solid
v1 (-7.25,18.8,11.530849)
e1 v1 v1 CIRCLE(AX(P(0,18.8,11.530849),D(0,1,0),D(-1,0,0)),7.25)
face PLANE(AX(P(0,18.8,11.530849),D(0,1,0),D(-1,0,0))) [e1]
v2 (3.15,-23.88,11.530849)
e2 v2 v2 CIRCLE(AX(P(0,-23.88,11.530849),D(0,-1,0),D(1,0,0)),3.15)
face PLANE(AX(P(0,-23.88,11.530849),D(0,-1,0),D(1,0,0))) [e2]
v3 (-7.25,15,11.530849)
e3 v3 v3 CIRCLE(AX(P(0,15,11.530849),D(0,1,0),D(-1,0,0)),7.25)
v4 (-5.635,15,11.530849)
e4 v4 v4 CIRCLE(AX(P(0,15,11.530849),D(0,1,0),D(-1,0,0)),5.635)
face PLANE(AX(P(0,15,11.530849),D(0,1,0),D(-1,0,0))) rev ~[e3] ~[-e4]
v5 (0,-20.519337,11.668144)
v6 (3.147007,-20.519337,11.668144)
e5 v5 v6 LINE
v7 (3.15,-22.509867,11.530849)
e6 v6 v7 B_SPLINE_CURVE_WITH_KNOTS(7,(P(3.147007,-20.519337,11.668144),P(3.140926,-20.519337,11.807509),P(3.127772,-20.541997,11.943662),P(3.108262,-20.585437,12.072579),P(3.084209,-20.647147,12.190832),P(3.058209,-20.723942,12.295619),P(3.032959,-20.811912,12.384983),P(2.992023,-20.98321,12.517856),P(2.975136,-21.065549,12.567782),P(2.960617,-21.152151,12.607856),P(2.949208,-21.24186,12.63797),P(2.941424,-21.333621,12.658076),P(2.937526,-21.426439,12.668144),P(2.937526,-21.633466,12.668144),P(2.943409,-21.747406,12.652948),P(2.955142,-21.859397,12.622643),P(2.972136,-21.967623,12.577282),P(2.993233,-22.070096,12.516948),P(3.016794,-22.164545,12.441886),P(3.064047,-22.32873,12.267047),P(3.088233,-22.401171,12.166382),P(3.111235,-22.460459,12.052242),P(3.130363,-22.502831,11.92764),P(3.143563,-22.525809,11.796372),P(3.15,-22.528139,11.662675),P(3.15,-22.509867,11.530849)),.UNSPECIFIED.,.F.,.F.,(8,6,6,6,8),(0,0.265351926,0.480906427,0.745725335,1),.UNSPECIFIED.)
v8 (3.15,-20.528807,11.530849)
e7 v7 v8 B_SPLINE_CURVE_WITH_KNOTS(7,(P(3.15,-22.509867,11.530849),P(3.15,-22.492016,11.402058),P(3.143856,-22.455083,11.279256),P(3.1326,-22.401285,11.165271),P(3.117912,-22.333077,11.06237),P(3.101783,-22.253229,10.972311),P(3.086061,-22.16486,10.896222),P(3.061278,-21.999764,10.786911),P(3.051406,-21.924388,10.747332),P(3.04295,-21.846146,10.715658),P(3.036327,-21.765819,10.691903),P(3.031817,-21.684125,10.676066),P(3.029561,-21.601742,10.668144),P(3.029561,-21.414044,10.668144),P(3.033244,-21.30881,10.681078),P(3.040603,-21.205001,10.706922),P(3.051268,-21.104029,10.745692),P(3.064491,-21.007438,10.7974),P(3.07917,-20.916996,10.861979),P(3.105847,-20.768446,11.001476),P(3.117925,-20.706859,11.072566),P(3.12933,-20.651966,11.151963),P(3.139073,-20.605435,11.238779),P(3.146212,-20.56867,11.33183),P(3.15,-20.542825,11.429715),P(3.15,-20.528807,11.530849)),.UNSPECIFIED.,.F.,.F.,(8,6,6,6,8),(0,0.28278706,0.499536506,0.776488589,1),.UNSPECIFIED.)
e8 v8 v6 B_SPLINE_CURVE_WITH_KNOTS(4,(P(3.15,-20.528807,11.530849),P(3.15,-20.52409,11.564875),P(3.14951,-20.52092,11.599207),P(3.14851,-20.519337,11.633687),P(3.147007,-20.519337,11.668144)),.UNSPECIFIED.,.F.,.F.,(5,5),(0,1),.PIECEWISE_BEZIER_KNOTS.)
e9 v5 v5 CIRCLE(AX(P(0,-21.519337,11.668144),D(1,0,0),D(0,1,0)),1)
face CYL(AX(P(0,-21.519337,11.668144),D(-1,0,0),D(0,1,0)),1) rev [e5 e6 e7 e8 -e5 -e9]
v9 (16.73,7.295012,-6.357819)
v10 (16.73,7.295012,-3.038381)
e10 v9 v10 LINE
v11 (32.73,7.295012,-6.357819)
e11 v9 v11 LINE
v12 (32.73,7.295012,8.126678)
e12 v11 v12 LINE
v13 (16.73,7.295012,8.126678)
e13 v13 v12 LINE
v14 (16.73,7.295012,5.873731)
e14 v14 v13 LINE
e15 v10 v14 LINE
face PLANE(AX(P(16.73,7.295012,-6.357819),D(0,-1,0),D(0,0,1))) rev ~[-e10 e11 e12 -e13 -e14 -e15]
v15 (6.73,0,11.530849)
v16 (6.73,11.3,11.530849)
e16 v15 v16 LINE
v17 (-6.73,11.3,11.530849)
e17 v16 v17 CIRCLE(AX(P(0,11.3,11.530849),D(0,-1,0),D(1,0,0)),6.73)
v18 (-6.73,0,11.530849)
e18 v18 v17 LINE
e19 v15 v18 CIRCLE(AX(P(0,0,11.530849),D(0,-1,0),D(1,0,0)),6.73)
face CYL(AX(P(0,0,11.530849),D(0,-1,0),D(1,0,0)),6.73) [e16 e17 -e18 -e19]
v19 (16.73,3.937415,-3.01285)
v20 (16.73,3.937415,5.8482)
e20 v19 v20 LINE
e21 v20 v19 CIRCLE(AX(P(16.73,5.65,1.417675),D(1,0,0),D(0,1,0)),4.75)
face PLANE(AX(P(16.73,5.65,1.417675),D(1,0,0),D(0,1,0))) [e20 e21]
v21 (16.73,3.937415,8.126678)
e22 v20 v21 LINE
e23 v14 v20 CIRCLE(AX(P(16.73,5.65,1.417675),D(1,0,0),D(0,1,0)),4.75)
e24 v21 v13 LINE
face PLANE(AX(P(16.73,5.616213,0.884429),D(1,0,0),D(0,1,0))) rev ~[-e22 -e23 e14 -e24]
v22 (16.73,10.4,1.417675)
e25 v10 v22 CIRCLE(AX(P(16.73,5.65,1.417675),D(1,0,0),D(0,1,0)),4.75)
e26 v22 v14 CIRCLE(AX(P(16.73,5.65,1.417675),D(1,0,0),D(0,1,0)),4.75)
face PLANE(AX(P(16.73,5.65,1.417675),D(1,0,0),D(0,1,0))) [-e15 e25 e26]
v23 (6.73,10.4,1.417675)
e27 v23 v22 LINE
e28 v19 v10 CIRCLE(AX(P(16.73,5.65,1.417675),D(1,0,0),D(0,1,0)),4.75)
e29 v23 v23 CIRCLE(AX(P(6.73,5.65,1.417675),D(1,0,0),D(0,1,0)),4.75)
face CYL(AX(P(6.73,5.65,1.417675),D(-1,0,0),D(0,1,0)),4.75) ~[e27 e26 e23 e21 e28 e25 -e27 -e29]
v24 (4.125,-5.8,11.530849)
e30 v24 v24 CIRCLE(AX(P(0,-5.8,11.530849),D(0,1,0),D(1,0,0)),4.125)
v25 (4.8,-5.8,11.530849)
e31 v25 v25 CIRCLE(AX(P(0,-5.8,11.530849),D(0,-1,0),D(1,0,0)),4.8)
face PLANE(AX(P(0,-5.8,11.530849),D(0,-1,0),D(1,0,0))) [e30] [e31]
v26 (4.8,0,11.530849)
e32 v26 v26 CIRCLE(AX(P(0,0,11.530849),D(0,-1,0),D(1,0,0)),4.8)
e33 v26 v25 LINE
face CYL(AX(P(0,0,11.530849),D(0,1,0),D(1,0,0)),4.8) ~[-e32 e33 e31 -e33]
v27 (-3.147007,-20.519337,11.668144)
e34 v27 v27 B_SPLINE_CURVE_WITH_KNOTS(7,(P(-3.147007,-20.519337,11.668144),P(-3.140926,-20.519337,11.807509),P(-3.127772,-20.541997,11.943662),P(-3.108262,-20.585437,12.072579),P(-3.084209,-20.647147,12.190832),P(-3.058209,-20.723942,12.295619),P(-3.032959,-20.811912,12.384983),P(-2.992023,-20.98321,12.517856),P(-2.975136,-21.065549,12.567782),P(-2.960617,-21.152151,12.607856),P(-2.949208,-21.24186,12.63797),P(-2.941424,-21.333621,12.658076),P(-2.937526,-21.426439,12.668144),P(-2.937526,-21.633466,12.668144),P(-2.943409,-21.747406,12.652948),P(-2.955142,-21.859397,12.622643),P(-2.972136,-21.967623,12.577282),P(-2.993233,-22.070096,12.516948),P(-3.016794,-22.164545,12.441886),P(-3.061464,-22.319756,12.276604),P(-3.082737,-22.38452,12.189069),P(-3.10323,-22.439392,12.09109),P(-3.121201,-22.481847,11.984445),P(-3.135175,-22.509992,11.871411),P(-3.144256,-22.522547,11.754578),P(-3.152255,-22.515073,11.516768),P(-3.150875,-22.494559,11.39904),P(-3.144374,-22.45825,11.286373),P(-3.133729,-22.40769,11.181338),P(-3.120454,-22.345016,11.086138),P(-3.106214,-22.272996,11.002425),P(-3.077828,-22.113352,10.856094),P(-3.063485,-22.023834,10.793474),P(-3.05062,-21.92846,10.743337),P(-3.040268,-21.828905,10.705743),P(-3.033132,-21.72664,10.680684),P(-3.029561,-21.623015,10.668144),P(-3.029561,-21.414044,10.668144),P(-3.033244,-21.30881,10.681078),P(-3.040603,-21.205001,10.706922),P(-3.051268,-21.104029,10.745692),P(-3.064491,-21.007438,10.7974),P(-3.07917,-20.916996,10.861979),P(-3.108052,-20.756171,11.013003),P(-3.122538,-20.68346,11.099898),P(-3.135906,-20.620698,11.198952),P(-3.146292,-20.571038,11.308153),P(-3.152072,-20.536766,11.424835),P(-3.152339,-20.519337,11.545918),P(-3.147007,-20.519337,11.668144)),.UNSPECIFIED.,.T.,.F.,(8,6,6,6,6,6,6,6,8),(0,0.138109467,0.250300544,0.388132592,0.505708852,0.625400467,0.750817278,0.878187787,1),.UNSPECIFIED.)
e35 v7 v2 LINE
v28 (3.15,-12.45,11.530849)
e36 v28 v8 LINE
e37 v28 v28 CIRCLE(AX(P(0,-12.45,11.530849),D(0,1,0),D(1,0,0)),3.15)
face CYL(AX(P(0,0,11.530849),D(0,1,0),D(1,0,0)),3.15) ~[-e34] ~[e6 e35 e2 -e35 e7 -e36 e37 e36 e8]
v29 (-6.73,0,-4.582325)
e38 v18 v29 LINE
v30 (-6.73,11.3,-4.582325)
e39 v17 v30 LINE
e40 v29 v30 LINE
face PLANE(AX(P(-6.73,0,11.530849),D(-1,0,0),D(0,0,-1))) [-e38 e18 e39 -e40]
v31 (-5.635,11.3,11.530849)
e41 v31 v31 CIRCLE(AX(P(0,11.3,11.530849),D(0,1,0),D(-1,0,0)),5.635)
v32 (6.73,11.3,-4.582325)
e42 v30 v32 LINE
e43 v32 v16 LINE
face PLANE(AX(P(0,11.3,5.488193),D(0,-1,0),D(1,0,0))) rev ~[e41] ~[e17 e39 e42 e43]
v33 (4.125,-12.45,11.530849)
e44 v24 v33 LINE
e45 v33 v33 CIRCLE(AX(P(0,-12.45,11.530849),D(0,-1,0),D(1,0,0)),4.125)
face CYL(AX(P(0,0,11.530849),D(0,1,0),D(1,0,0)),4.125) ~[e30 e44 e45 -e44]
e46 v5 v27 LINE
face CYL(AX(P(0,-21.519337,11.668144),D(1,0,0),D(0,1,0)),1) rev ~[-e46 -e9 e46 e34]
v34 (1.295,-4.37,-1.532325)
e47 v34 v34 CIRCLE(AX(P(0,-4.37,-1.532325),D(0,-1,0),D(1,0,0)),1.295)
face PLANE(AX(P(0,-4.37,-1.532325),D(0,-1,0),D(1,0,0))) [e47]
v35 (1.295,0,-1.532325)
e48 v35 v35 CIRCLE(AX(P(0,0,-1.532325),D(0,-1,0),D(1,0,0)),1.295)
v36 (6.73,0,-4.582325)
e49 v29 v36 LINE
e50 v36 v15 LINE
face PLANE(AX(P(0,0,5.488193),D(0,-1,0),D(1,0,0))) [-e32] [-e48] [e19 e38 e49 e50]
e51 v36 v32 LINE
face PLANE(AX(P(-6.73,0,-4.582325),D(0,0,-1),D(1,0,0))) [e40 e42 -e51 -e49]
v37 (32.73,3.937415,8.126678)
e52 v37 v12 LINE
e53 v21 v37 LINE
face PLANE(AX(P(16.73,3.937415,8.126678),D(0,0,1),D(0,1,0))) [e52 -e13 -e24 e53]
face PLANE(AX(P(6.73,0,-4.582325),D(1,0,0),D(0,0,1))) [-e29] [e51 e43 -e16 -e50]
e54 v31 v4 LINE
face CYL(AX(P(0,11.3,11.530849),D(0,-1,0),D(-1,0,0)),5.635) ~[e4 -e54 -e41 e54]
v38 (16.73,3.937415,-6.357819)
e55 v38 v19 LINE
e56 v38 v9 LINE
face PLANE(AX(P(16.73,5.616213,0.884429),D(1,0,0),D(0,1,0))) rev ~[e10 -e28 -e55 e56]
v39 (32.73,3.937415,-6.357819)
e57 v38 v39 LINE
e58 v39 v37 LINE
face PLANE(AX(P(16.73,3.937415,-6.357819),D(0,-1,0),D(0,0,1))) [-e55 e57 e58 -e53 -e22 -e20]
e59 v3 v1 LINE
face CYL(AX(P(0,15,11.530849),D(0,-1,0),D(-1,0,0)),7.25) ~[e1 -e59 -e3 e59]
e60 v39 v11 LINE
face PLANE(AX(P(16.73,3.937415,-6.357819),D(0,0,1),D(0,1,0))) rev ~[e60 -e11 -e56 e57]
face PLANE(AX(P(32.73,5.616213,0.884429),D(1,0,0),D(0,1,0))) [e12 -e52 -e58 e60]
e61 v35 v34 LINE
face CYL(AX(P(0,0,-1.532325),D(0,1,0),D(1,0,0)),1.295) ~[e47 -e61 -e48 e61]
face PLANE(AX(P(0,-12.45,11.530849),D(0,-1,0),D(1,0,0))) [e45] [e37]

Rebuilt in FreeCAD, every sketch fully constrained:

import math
import FreeCAD as App
import Part
import Sketcher
from FreeCAD import Vector
Q = App.Units.Quantity

doc = App.newDocument("Part")
params = doc.addObject("Spreadsheet::Sheet", "Params")
for row, (alias, value) in enumerate([
    ("sketch1_radius", "6.73 mm"),
    ("pad1_length", "11.3 mm"),
    ("sketch2_diameter", "9.6 mm"),
    ("pad2_length", "5.8 mm"),
    ("sketch3_diameter", "8.25 mm"),
    ("pad3_length", "12.45 mm"),
    ("sketch4_diameter", "6.3 mm"),
    ("pad4_length", "23.88 mm"),
    ("sketch5_diameter", "2 mm"),
    ("sketch6_diameter", "11.27 mm"),
    ("pad5_length", "3.7 mm"),
    ("sketch7_diameter", "14.5 mm"),
    ("pad6_length", "3.8 mm"),
    ("sketch8_diameter", "9.5 mm"),
    ("pad7_length", "10 mm"),
    ("pad8_length", "16 mm"),
    ("sketch10_diameter", "2.59 mm"),
    ("pad9_length", "4.37 mm"),
], start=1):
    params.set(f"A{row}", alias)
    params.set(f"B{row}", "=" + value)
    params.setAlias(f"B{row}", alias)

body = doc.addObject("PartDesign::Body", "Body")

# Sketch on XZ plane
sketch1 = body.newObject("Sketcher::SketchObject", "Sketch")
sketch1.AttachmentSupport = (doc.getObject("XZ_Plane"), [""])
sketch1.MapMode = "FlatFace"
sketch1.addGeometry(Part.ArcOfCircle(Part.Circle(Vector(0, 12, 0), Vector(0, 0, 1), 7), math.radians(0), math.radians(180)), False)
sketch1.addGeometry(Part.LineSegment(Vector(-7, 12, 0), Vector(-7, -5, 0)), False)
sketch1.addGeometry(Part.LineSegment(Vector(-7, -5, 0), Vector(7, -5, 0)), False)
sketch1.addGeometry(Part.LineSegment(Vector(7, -5, 0), Vector(7, 12, 0)), False)
sketch1.addConstraint(Sketcher.Constraint("Tangent", 0, 2, 1, 1))
sketch1.addConstraint(Sketcher.Constraint("Coincident", 1, 2, 2, 1))
sketch1.addConstraint(Sketcher.Constraint("Coincident", 2, 2, 3, 1))
sketch1.addConstraint(Sketcher.Constraint("Tangent", 3, 2, 0, 1))
sketch1.addConstraint(Sketcher.Constraint("Vertical", 1))
sketch1.addConstraint(Sketcher.Constraint("Horizontal", 2))
sketch1.addConstraint(Sketcher.Constraint("Vertical", 3))
sketch1.addConstraint(Sketcher.Constraint("PointOnObject", 0, 3, -2))
sketch1.addConstraint(Sketcher.Constraint("Radius", 0, Q("6.73 mm")))
sketch1.addConstraint(Sketcher.Constraint("DistanceY", 1, 2, 1, 1, Q("16.113173 mm")))
sketch1.addConstraint(Sketcher.Constraint("DistanceY", -1, 1, 0, 3, Q("11.530849 mm")))
sketch1.setExpression("Constraints[8]", "Params.sketch1_radius")
pad1 = body.newObject("PartDesign::Pad", "Pad")
pad1.Profile = sketch1
pad1.setExpression("Length", "Params.pad1_length")
pad1.Reversed = True

# Sketch on XZ plane
sketch2 = body.newObject("Sketcher::SketchObject", "Sketch001")
sketch2.AttachmentSupport = (doc.getObject("XZ_Plane"), [""])
sketch2.MapMode = "FlatFace"
sketch2.addGeometry(Part.Circle(Vector(0, 11.5, 0), Vector(0, 0, 1), 4.8), False)
sketch2.addConstraint(Sketcher.Constraint("PointOnObject", 0, 3, -2))
sketch2.addConstraint(Sketcher.Constraint("Diameter", 0, Q("9.6 mm")))
sketch2.addConstraint(Sketcher.Constraint("DistanceY", -1, 1, 0, 3, Q("11.530849 mm")))
sketch2.setExpression("Constraints[1]", "Params.sketch2_diameter")
pad2 = body.newObject("PartDesign::Pad", "Pad001")
pad2.Profile = sketch2
pad2.setExpression("Length", "Params.pad2_length")

# Sketch on XZ plane
sketch3 = body.newObject("Sketcher::SketchObject", "Sketch002")
sketch3.AttachmentSupport = (doc.getObject("XZ_Plane"), [""])
sketch3.MapMode = "FlatFace"
sketch3.addGeometry(Part.Circle(Vector(0, 11.5, 0), Vector(0, 0, 1), 4.1), False)
sketch3.addConstraint(Sketcher.Constraint("PointOnObject", 0, 3, -2))
sketch3.addConstraint(Sketcher.Constraint("Diameter", 0, Q("8.25 mm")))
sketch3.addConstraint(Sketcher.Constraint("DistanceY", -1, 1, 0, 3, Q("11.530849 mm")))
sketch3.setExpression("Constraints[1]", "Params.sketch3_diameter")
pad3 = body.newObject("PartDesign::Pad", "Pad002")
pad3.Profile = sketch3
pad3.setExpression("Length", "Params.pad3_length")

# Sketch on XZ plane
sketch4 = body.newObject("Sketcher::SketchObject", "Sketch003")
sketch4.AttachmentSupport = (doc.getObject("XZ_Plane"), [""])
sketch4.MapMode = "FlatFace"
sketch4.addGeometry(Part.Circle(Vector(0, 11.5, 0), Vector(0, 0, 1), 3.1), False)
sketch4.addConstraint(Sketcher.Constraint("PointOnObject", 0, 3, -2))
sketch4.addConstraint(Sketcher.Constraint("Diameter", 0, Q("6.3 mm")))
sketch4.addConstraint(Sketcher.Constraint("DistanceY", -1, 1, 0, 3, Q("11.530849 mm")))
sketch4.setExpression("Constraints[1]", "Params.sketch4_diameter")
pad4 = body.newObject("PartDesign::Pad", "Pad003")
pad4.Profile = sketch4
pad4.setExpression("Length", "Params.pad4_length")

# Sketch on YZ plane
sketch5 = body.newObject("Sketcher::SketchObject", "Sketch004")
sketch5.AttachmentSupport = (doc.getObject("YZ_Plane"), [""])
sketch5.MapMode = "FlatFace"
sketch5.addGeometry(Part.Circle(Vector(-21.5, 11.7, 0), Vector(0, 0, 1), 1), False)
sketch5.addConstraint(Sketcher.Constraint("Diameter", 0, Q("2 mm")))
sketch5.addConstraint(Sketcher.Constraint("DistanceX", 0, 3, -1, 1, Q("21.519337 mm")))
sketch5.addConstraint(Sketcher.Constraint("DistanceY", -1, 1, 0, 3, Q("11.668144 mm")))
sketch5.setExpression("Constraints[0]", "Params.sketch5_diameter")
pocket1 = body.newObject("PartDesign::Pocket", "Pocket")
pocket1.Profile = sketch5
pocket1.Type = "ThroughAll"
pocket1.Midplane = True

# Sketch on XZ plane
sketch6 = body.newObject("Sketcher::SketchObject", "Sketch005")
sketch6.AttachmentSupport = (doc.getObject("XZ_Plane"), [""])
sketch6.MapMode = "FlatFace"
sketch6.AttachmentOffset = App.Placement(Vector(0, 0, -11.3), App.Rotation())
sketch6.addGeometry(Part.Circle(Vector(0, 12, 0), Vector(0, 0, 1), 6), False)
sketch6.addConstraint(Sketcher.Constraint("PointOnObject", 0, 3, -2))
sketch6.addConstraint(Sketcher.Constraint("Diameter", 0, Q("11.27 mm")))
sketch6.addConstraint(Sketcher.Constraint("DistanceY", -1, 1, 0, 3, Q("11.530849 mm")))
sketch6.setExpression("Constraints[1]", "Params.sketch6_diameter")
pad5 = body.newObject("PartDesign::Pad", "Pad004")
pad5.Profile = sketch6
pad5.setExpression("Length", "Params.pad5_length")
pad5.Reversed = True

# Sketch on XZ plane
sketch7 = body.newObject("Sketcher::SketchObject", "Sketch006")
sketch7.AttachmentSupport = (doc.getObject("XZ_Plane"), [""])
sketch7.MapMode = "FlatFace"
sketch7.AttachmentOffset = App.Placement(Vector(0, 0, -15), App.Rotation())
sketch7.addGeometry(Part.Circle(Vector(0, 12, 0), Vector(0, 0, 1), 7), False)
sketch7.addConstraint(Sketcher.Constraint("PointOnObject", 0, 3, -2))
sketch7.addConstraint(Sketcher.Constraint("Diameter", 0, Q("14.5 mm")))
sketch7.addConstraint(Sketcher.Constraint("DistanceY", -1, 1, 0, 3, Q("11.530849 mm")))
sketch7.setExpression("Constraints[1]", "Params.sketch7_diameter")
pad6 = body.newObject("PartDesign::Pad", "Pad005")
pad6.Profile = sketch7
pad6.setExpression("Length", "Params.pad6_length")
pad6.Reversed = True

# Sketch on YZ plane
sketch8 = body.newObject("Sketcher::SketchObject", "Sketch007")
sketch8.AttachmentSupport = (doc.getObject("YZ_Plane"), [""])
sketch8.MapMode = "FlatFace"
sketch8.AttachmentOffset = App.Placement(Vector(0, 0, 6.73), App.Rotation())
sketch8.addGeometry(Part.Circle(Vector(5.7, 1.4, 0), Vector(0, 0, 1), 4.8), False)
sketch8.addConstraint(Sketcher.Constraint("Diameter", 0, Q("9.5 mm")))
sketch8.addConstraint(Sketcher.Constraint("DistanceX", -1, 1, 0, 3, Q("5.65 mm")))
sketch8.addConstraint(Sketcher.Constraint("DistanceY", -1, 1, 0, 3, Q("1.417675 mm")))
sketch8.setExpression("Constraints[0]", "Params.sketch8_diameter")
pad7 = body.newObject("PartDesign::Pad", "Pad006")
pad7.Profile = sketch8
pad7.setExpression("Length", "Params.pad7_length")

# Sketch on YZ plane
sketch9 = body.newObject("Sketcher::SketchObject", "Sketch008")
sketch9.AttachmentSupport = (doc.getObject("YZ_Plane"), [""])
sketch9.MapMode = "FlatFace"
sketch9.AttachmentOffset = App.Placement(Vector(0, 0, 16.73), App.Rotation())
sketch9.addGeometry(Part.LineSegment(Vector(3.9, 8.1, 0), Vector(3.9, -6.4, 0)), False)
sketch9.addGeometry(Part.LineSegment(Vector(3.9, -6.4, 0), Vector(7.3, -6.4, 0)), False)
sketch9.addGeometry(Part.LineSegment(Vector(7.3, -6.4, 0), Vector(7.3, 8.1, 0)), False)
sketch9.addGeometry(Part.LineSegment(Vector(7.3, 8.1, 0), Vector(3.9, 8.1, 0)), False)
sketch9.addConstraint(Sketcher.Constraint("Coincident", 0, 2, 1, 1))
sketch9.addConstraint(Sketcher.Constraint("Coincident", 1, 2, 2, 1))
sketch9.addConstraint(Sketcher.Constraint("Coincident", 2, 2, 3, 1))
sketch9.addConstraint(Sketcher.Constraint("Coincident", 3, 2, 0, 1))
sketch9.addConstraint(Sketcher.Constraint("Vertical", 0))
sketch9.addConstraint(Sketcher.Constraint("Horizontal", 1))
sketch9.addConstraint(Sketcher.Constraint("Vertical", 2))
sketch9.addConstraint(Sketcher.Constraint("Horizontal", 3))
sketch9.addConstraint(Sketcher.Constraint("DistanceX", 1, 1, 1, 2, Q("3.357597 mm")))
sketch9.addConstraint(Sketcher.Constraint("DistanceY", 0, 2, 0, 1, Q("14.484497 mm")))
sketch9.addConstraint(Sketcher.Constraint("DistanceY", 0, 2, -1, 1, Q("6.357819 mm")))
sketch9.addConstraint(Sketcher.Constraint("DistanceX", -1, 1, 1, 2, Q("7.295012 mm")))
pad8 = body.newObject("PartDesign::Pad", "Pad007")
pad8.Profile = sketch9
pad8.setExpression("Length", "Params.pad8_length")

# Sketch on XZ plane
sketch10 = body.newObject("Sketcher::SketchObject", "Sketch009")
sketch10.AttachmentSupport = (doc.getObject("XZ_Plane"), [""])
sketch10.MapMode = "FlatFace"
sketch10.addGeometry(Part.Circle(Vector(0, -1.5, 0), Vector(0, 0, 1), 1.3), False)
sketch10.addConstraint(Sketcher.Constraint("PointOnObject", 0, 3, -2))
sketch10.addConstraint(Sketcher.Constraint("Diameter", 0, Q("2.59 mm")))
sketch10.addConstraint(Sketcher.Constraint("DistanceY", 0, 3, -1, 1, Q("1.532325 mm")))
sketch10.setExpression("Constraints[1]", "Params.sketch10_diameter")
pad9 = body.newObject("PartDesign::Pad", "Pad008")
pad9.Profile = sketch10
pad9.setExpression("Length", "Params.pad9_length")

doc.recompute()
